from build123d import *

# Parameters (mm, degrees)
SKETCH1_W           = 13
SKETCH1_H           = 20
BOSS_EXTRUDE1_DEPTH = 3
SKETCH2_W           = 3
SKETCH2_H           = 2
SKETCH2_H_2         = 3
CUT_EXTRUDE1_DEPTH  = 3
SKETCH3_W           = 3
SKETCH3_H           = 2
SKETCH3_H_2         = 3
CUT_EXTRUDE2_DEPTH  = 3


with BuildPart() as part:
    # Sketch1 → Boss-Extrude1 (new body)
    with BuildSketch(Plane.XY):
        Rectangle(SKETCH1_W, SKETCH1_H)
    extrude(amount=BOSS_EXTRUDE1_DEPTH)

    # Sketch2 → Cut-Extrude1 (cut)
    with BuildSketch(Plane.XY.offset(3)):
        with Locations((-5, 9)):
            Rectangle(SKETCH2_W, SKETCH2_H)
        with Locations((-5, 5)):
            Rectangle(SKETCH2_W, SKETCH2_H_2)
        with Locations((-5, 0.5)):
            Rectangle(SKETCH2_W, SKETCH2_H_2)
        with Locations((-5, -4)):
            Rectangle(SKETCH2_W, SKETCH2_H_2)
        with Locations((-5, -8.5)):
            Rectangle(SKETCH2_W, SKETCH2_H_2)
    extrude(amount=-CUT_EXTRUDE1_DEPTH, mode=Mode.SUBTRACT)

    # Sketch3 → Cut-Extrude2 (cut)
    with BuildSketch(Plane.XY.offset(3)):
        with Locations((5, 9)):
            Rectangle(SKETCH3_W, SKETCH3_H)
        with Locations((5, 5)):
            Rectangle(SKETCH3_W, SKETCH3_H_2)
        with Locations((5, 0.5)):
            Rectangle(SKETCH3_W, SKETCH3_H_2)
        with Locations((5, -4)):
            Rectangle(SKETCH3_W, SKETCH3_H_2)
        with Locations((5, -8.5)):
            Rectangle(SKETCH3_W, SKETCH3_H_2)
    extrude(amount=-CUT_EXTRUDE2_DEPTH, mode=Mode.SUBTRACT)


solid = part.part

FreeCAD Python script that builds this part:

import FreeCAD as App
import Part
import Sketcher

V = App.Vector
Q = App.Units.Quantity


def add_polygon(sketch, points):
    """Adds a closed chain of lines whose ends are joined by coincident constraints."""
    first, n = sketch.GeometryCount, len(points)
    for a, b in zip(points, points[1:] + points[:1]):
        sketch.addGeometry(Part.LineSegment(App.Vector(*a, 0), App.Vector(*b, 0)), False)
    for i in range(n):
        sketch.addConstraint(Sketcher.Constraint("Coincident", first + i, 2, first + (i + 1) % n, 1))

doc = App.newDocument("Part")
params = doc.addObject("Spreadsheet::Sheet", "Params")
for row, (alias, value) in enumerate([
    ("sketch1_width", "13 mm"),
    ("sketch1_height", "20 mm"),
    ("pad1_length", "3 mm"),
    ("sketch2_width", "3 mm"),
    ("sketch2_height", "2 mm"),
    ("pocket1_length", "3 mm"),
    ("sketch3_width", "3 mm"),
    ("sketch3_height", "2 mm"),
    ("pocket2_length", "3 mm"),
], start=1):
    params.set(f"A{row}", alias)
    params.set(f"B{row}", "=" + value)
    params.setAlias(f"B{row}", alias)

body = doc.addObject("PartDesign::Body", "Body")

# Sketch on XY plane
sketch1 = body.newObject("Sketcher::SketchObject", "Sketch")
sketch1.AttachmentSupport = (doc.getObject("XY_Plane"), [""])
sketch1.MapMode = "FlatFace"
add_polygon(sketch1, [(-6, 10), (-6, -10), (6, -10), (6, 10)])  # lines 0-3
sketch1.addConstraint(Sketcher.Constraint("Vertical", 0))
sketch1.addConstraint(Sketcher.Constraint("Horizontal", 1))
sketch1.addConstraint(Sketcher.Constraint("Vertical", 2))
sketch1.addConstraint(Sketcher.Constraint("Horizontal", 3))
sketch1.addConstraint(Sketcher.Constraint("Symmetric", 0, 2, 2, 2, -1, 1))
sketch1.addConstraint(Sketcher.Constraint("DistanceX", 1, 1, 1, 2, Q("13 mm")))
sketch1.addConstraint(Sketcher.Constraint("DistanceY", 0, 2, 0, 1, Q("20 mm")))
sketch1.setExpression("Constraints[9]", "Params.sketch1_width")
sketch1.setExpression("Constraints[10]", "Params.sketch1_height")
pad1 = body.newObject("PartDesign::Pad", "Pad")
pad1.Profile = sketch1
pad1.setExpression("Length", "Params.pad1_length")

# Sketch on XY plane
sketch2 = body.newObject("Sketcher::SketchObject", "Sketch001")
sketch2.AttachmentSupport = (doc.getObject("XY_Plane"), [""])
sketch2.MapMode = "FlatFace"
sketch2.AttachmentOffset = App.Placement(V(0, 0, 3), App.Rotation())
add_polygon(sketch2, [(-6.5, 10), (-6.5, 8), (-3.5, 8), (-3.5, 10)])  # lines 0-3
add_polygon(sketch2, [(-6.5, 6.5), (-6.5, 3.5), (-3.5, 3.5), (-3.5, 6.5)])  # lines 4-7
add_polygon(sketch2, [(-6.5, 2), (-6.5, -1), (-3.5, -1), (-3.5, 2)])  # lines 8-11
add_polygon(sketch2, [(-6.5, -2.5), (-6.5, -5.5), (-3.5, -5.5), (-3.5, -2.5)])  # lines 12-15
add_polygon(sketch2, [(-6.5, -7), (-6.5, -10), (-3.5, -10), (-3.5, -7)])  # lines 16-19
sketch2.addConstraint(Sketcher.Constraint("Vertical", 0))
sketch2.addConstraint(Sketcher.Constraint("Horizontal", 1))
sketch2.addConstraint(Sketcher.Constraint("Vertical", 2))
sketch2.addConstraint(Sketcher.Constraint("Horizontal", 3))
sketch2.addConstraint(Sketcher.Constraint("Vertical", 4))
sketch2.addConstraint(Sketcher.Constraint("Horizontal", 5))
sketch2.addConstraint(Sketcher.Constraint("Vertical", 6))
sketch2.addConstraint(Sketcher.Constraint("Horizontal", 7))
sketch2.addConstraint(Sketcher.Constraint("Vertical", 8))
sketch2.addConstraint(Sketcher.Constraint("Horizontal", 9))
sketch2.addConstraint(Sketcher.Constraint("Vertical", 10))
sketch2.addConstraint(Sketcher.Constraint("Horizontal", 11))
sketch2.addConstraint(Sketcher.Constraint("Vertical", 12))
sketch2.addConstraint(Sketcher.Constraint("Horizontal", 13))
sketch2.addConstraint(Sketcher.Constraint("Vertical", 14))
sketch2.addConstraint(Sketcher.Constraint("Horizontal", 15))
sketch2.addConstraint(Sketcher.Constraint("Vertical", 16))
sketch2.addConstraint(Sketcher.Constraint("Horizontal", 17))
sketch2.addConstraint(Sketcher.Constraint("Vertical", 18))
sketch2.addConstraint(Sketcher.Constraint("Horizontal", 19))
sketch2.addConstraint(Sketcher.Constraint("Symmetric", 3, 2, 16, 2, -1))
sketch2.addConstraint(Sketcher.Constraint("Vertical", 3, 2, 4, 2))
sketch2.addConstraint(Sketcher.Constraint("Vertical", 2, 2, 5, 2))
sketch2.addConstraint(Sketcher.Constraint("Vertical", 7, 2, 8, 2))
sketch2.addConstraint(Sketcher.Constraint("Vertical", 6, 2, 9, 2))
sketch2.addConstraint(Sketcher.Constraint("Vertical", 11, 2, 12, 2))
sketch2.addConstraint(Sketcher.Constraint("Vertical", 10, 2, 13, 2))
sketch2.addConstraint(Sketcher.Constraint("Vertical", 14, 2, 17, 2))
sketch2.addConstraint(Sketcher.Constraint("Equal", 19, 4))
sketch2.addConstraint(Sketcher.Constraint("Equal", 6, 8))
sketch2.addConstraint(Sketcher.Constraint("Equal", 10, 12))
sketch2.addConstraint(Sketcher.Constraint("Equal", 14, 16))
sketch2.addConstraint(Sketcher.Constraint("DistanceX", 1, 1, 1, 2, Q("3 mm")))
sketch2.addConstraint(Sketcher.Constraint("DistanceY", 0, 2, 0, 1, Q("2 mm")))
sketch2.addConstraint(Sketcher.Constraint("DistanceY", -1, 1, 0, 2, Q("8 mm")))
sketch2.addConstraint(Sketcher.Constraint("DistanceY", 8, 2, -1, 1, Q("1 mm")))
sketch2.addConstraint(Sketcher.Constraint("DistanceY", 12, 2, 4, 2, Q("9 mm")))
sketch2.addConstraint(Sketcher.Constraint("DistanceX", 0, 2, -1, 1, Q("6.5 mm")))
sketch2.addConstraint(Sketcher.Constraint("DistanceY", -1, 1, 4, 2, Q("3.5 mm")))
sketch2.setExpression("Constraints[52]", "Params.sketch2_width")
sketch2.setExpression("Constraints[53]", "Params.sketch2_height")
pocket1 = body.newObject("PartDesign::Pocket", "Pocket")
pocket1.Profile = sketch2
pocket1.setExpression("Length", "Params.pocket1_length")

# Sketch on XY plane
sketch3 = body.newObject("Sketcher::SketchObject", "Sketch002")
sketch3.AttachmentSupport = (doc.getObject("XY_Plane"), [""])
sketch3.MapMode = "FlatFace"
sketch3.AttachmentOffset = App.Placement(V(0, 0, 3), App.Rotation())
add_polygon(sketch3, [(3.5, 10), (3.5, 8), (6.5, 8), (6.5, 10)])  # lines 0-3
add_polygon(sketch3, [(3.5, 6.5), (3.5, 3.5), (6.5, 3.5), (6.5, 6.5)])  # lines 4-7
add_polygon(sketch3, [(3.5, 2), (3.5, -1), (6.5, -1), (6.5, 2)])  # lines 8-11
add_polygon(sketch3, [(3.5, -2.5), (3.5, -5.5), (6.5, -5.5), (6.5, -2.5)])  # lines 12-15
add_polygon(sketch3, [(3.5, -7), (3.5, -10), (6.5, -10), (6.5, -7)])  # lines 16-19
sketch3.addConstraint(Sketcher.Constraint("Vertical", 0))
sketch3.addConstraint(Sketcher.Constraint("Horizontal", 1))
sketch3.addConstraint(Sketcher.Constraint("Vertical", 2))
sketch3.addConstraint(Sketcher.Constraint("Horizontal", 3))
sketch3.addConstraint(Sketcher.Constraint("Vertical", 4))
sketch3.addConstraint(Sketcher.Constraint("Horizontal", 5))
sketch3.addConstraint(Sketcher.Constraint("Vertical", 6))
sketch3.addConstraint(Sketcher.Constraint("Horizontal", 7))
sketch3.addConstraint(Sketcher.Constraint("Vertical", 8))
sketch3.addConstraint(Sketcher.Constraint("Horizontal", 9))
sketch3.addConstraint(Sketcher.Constraint("Vertical", 10))
sketch3.addConstraint(Sketcher.Constraint("Horizontal", 11))
sketch3.addConstraint(Sketcher.Constraint("Vertical", 12))
sketch3.addConstraint(Sketcher.Constraint("Horizontal", 13))
sketch3.addConstraint(Sketcher.Constraint("Vertical", 14))
sketch3.addConstraint(Sketcher.Constraint("Horizontal", 15))
sketch3.addConstraint(Sketcher.Constraint("Vertical", 16))
sketch3.addConstraint(Sketcher.Constraint("Horizontal", 17))
sketch3.addConstraint(Sketcher.Constraint("Vertical", 18))
sketch3.addConstraint(Sketcher.Constraint("Horizontal", 19))
sketch3.addConstraint(Sketcher.Constraint("Symmetric", 3, 2, 16, 2, -1))
sketch3.addConstraint(Sketcher.Constraint("Vertical", 3, 2, 4, 2))
sketch3.addConstraint(Sketcher.Constraint("Vertical", 2, 2, 5, 2))
sketch3.addConstraint(Sketcher.Constraint("Vertical", 7, 2, 8, 2))
sketch3.addConstraint(Sketcher.Constraint("Vertical", 6, 2, 9, 2))
sketch3.addConstraint(Sketcher.Constraint("Vertical", 11, 2, 12, 2))
sketch3.addConstraint(Sketcher.Constraint("Vertical", 10, 2, 13, 2))
sketch3.addConstraint(Sketcher.Constraint("Vertical", 14, 2, 17, 2))
sketch3.addConstraint(Sketcher.Constraint("Equal", 19, 4))
sketch3.addConstraint(Sketcher.Constraint("Equal", 6, 8))
sketch3.addConstraint(Sketcher.Constraint("Equal", 10, 12))
sketch3.addConstraint(Sketcher.Constraint("Equal", 14, 16))
sketch3.addConstraint(Sketcher.Constraint("DistanceX", 1, 1, 1, 2, Q("3 mm")))
sketch3.addConstraint(Sketcher.Constraint("DistanceY", 0, 2, 0, 1, Q("2 mm")))
sketch3.addConstraint(Sketcher.Constraint("DistanceY", -1, 1, 0, 2, Q("8 mm")))
sketch3.addConstraint(Sketcher.Constraint("DistanceY", 8, 2, -1, 1, Q("1 mm")))
sketch3.addConstraint(Sketcher.Constraint("DistanceY", 12, 2, 4, 2, Q("9 mm")))
sketch3.addConstraint(Sketcher.Constraint("DistanceX", -1, 1, 0, 2, Q("3.5 mm")))
sketch3.addConstraint(Sketcher.Constraint("DistanceY", -1, 1, 4, 2, Q("3.5 mm")))
sketch3.setExpression("Constraints[52]", "Params.sketch3_width")
sketch3.setExpression("Constraints[53]", "Params.sketch3_height")
pocket2 = body.newObject("PartDesign::Pocket", "Pocket001")
pocket2.Profile = sketch3
pocket2.setExpression("Length", "Params.pocket2_length")

doc.recompute()
